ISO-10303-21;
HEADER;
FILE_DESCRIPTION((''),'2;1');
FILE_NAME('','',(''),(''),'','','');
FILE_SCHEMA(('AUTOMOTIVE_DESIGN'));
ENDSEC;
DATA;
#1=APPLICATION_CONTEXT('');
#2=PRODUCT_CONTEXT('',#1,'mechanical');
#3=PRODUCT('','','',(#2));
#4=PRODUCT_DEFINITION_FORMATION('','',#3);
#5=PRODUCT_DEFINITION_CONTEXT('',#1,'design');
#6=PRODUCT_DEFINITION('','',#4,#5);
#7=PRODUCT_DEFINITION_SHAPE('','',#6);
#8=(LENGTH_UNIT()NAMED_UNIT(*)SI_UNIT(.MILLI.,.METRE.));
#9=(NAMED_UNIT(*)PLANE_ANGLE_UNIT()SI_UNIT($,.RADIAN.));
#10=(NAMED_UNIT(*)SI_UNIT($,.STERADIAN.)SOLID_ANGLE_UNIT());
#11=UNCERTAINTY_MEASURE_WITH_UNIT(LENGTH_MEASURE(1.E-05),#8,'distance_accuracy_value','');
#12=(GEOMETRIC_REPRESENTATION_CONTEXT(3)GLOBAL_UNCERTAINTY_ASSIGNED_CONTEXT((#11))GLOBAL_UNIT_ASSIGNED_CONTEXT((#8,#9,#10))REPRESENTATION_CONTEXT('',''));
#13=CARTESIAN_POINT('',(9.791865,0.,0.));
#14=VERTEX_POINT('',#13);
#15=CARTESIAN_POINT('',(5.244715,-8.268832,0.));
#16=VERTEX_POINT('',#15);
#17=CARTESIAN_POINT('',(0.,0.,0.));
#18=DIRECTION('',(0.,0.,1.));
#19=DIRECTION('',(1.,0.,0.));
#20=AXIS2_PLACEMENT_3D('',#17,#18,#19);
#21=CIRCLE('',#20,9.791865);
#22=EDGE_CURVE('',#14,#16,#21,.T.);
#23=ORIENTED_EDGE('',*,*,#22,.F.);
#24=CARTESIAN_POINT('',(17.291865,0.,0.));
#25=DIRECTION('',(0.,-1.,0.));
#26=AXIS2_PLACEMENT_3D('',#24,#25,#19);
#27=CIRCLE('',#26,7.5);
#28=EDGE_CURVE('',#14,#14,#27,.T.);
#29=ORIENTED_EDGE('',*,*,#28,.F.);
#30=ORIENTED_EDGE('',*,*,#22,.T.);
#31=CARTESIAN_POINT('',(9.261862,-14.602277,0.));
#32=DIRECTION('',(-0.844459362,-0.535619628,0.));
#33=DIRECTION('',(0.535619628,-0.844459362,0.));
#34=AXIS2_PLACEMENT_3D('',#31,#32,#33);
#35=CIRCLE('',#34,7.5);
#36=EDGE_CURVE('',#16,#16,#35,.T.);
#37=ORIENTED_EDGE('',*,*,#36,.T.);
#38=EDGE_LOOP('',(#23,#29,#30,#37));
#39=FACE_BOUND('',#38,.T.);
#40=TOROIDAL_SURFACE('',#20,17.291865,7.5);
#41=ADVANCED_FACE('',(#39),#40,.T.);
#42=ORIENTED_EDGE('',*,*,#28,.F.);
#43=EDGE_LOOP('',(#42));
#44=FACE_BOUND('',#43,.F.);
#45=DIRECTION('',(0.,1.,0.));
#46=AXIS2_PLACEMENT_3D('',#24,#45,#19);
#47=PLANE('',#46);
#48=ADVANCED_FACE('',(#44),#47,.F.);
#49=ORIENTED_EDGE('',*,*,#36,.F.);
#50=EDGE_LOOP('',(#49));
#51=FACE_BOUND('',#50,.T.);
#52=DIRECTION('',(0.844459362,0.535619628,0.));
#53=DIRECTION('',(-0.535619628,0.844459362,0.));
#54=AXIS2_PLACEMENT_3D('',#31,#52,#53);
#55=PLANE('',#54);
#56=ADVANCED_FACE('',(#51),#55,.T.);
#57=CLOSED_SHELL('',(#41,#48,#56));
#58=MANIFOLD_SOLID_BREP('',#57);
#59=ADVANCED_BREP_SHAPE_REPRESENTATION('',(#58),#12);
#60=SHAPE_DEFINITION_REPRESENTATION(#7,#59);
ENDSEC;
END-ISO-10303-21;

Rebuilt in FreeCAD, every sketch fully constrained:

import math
import FreeCAD as App
import Part
import Sketcher

V = App.Vector

doc = App.newDocument("Part")
body = doc.addObject("PartDesign::Body", "Body")

sketch1 = body.newObject("Sketcher::SketchObject", "Sketch")
sketch1.AttachmentSupport = (doc.getObject("XZ_Plane"), [""])
sketch1.MapMode = "FlatFace"
sketch1.addGeometry(Part.Circle(V(17, 0, 0), V(0, 0, 1), 8), False)
sketch1.addConstraint(Sketcher.Constraint("PointOnObject", 0, 3, -1))
sketch1.addConstraint(Sketcher.Constraint("Diameter", 0, 15.0))
sketch1.addConstraint(Sketcher.Constraint("DistanceX", -1, 1, 0, 3, 17.291865))

sketch2 = body.newObject("Sketcher::SketchObject", "Sketch001")
sketch2.AttachmentSupport = (doc.getObject("XY_Plane"), [""])
sketch2.MapMode = "FlatFace"
sketch2.addGeometry(Part.ArcOfCircle(Part.Circle(V(0, 0, 0), V(0, 0, 1), 25), math.radians(0), math.radians(302)), False)
sketch2.addConstraint(Sketcher.Constraint("Coincident", 0, 3, -1, 1))
sketch2.addConstraint(Sketcher.Constraint("PointOnObject", 0, 1, -1))
sketch2.addConstraint(Sketcher.Constraint("Radius", 0, 25.0))
sketch2.addConstraint(Sketcher.Constraint("DistanceX", -1, 1, 0, 2, 13.390491))
doc.recompute()

additivepipe = body.newObject("PartDesign::AdditivePipe", "AdditivePipe")
additivepipe.Profile = sketch1
additivepipe.Spine = (sketch2, ["Edge1"])

doc.recompute()
